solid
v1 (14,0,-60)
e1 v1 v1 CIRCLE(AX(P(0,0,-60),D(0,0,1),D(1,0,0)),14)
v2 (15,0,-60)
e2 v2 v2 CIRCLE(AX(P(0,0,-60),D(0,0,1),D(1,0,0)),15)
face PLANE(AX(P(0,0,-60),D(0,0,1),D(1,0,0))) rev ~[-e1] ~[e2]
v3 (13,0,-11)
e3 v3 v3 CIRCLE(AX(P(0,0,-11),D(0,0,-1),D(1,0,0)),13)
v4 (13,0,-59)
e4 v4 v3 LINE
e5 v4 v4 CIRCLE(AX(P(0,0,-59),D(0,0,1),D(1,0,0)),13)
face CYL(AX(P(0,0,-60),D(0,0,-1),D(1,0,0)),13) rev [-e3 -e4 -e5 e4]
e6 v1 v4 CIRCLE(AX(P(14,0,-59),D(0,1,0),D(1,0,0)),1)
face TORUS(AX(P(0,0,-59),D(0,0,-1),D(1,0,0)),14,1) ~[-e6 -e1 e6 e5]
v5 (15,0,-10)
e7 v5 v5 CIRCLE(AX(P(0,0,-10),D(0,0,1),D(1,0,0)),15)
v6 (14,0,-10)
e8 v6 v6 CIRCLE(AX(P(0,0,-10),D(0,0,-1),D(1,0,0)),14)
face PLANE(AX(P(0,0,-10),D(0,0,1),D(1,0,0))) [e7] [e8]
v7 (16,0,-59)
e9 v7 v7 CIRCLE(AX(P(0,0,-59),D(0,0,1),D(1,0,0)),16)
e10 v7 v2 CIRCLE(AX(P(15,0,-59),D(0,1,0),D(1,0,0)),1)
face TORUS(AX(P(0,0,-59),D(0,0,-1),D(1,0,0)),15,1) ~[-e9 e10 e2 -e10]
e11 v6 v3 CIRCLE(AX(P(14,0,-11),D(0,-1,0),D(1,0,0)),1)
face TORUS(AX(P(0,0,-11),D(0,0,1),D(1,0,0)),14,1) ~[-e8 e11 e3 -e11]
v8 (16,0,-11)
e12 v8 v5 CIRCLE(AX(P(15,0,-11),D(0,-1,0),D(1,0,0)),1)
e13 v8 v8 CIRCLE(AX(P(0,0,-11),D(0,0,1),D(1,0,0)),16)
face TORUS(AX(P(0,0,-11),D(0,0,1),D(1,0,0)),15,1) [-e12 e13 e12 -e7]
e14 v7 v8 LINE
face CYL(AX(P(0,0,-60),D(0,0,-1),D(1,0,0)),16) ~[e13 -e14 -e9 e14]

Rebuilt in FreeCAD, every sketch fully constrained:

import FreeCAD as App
import Part
import Sketcher
from FreeCAD import Vector
Q = App.Units.Quantity


def edges_at(feature, points):
    """Names of the edges that pass closest to the given points."""
    edges = feature.Shape.Edges
    near = lambda p: min(range(len(edges)), key=lambda i: edges[i].distToShape(Part.Vertex(*p))[0])
    return sorted({f"Edge{near(p) + 1}" for p in points})

doc = App.newDocument("Part")
body = doc.addObject("PartDesign::Body", "Body")

sketch1 = body.newObject("Sketcher::SketchObject", "Sketch")
sketch1.AttachmentSupport = (doc.getObject("XY_Plane"), [""])
sketch1.MapMode = "FlatFace"
sketch1.AttachmentOffset = App.Placement(Vector(0, 0, -60), App.Rotation())
sketch1.addGeometry(Part.Circle(Vector(0, 0, 0), Vector(0, 0, 1), 13), False)
sketch1.addConstraint(Sketcher.Constraint("Coincident", 0, 3, -1, 1))
sketch1.addConstraint(Sketcher.Constraint("Diameter", 0, Q("26 mm")))
pad1 = body.newObject("PartDesign::Pad", "Pad")
pad1.Profile = sketch1
pad1.Length = 120
body2 = doc.addObject("PartDesign::Body", "Body001")

sketch2 = body2.newObject("Sketcher::SketchObject", "Sketch001")
sketch2.AttachmentSupport = (doc.getObject("XY_Plane001"), [""])
sketch2.MapMode = "FlatFace"
sketch2.AttachmentOffset = App.Placement(Vector(0, 0, -60), App.Rotation())
sketch2.addGeometry(Part.Circle(Vector(0, 0, 0), Vector(0, 0, 1), 16), False)
sketch2.addConstraint(Sketcher.Constraint("Coincident", 0, 3, -1, 1))
sketch2.addConstraint(Sketcher.Constraint("Diameter", 0, Q("32 mm")))
pad2 = body2.newObject("PartDesign::Pad", "Pad001")
pad2.Profile = sketch2
pad2.Length = 50
doc.recompute()

boolean = body2.newObject("PartDesign::Boolean", "Boolean")
boolean.Type = "Cut"
boolean.addObjects([body])
doc.recompute()

fillet = body2.newObject("PartDesign::Fillet", "Fillet")
fillet.Base = (boolean, edges_at(boolean, [
    (-16, 0, -10),
    (-16, 0, -60),
    (-13, 0, -10),
    (-13, 0, -60),
]))
fillet.Radius = 1

doc.recompute()
